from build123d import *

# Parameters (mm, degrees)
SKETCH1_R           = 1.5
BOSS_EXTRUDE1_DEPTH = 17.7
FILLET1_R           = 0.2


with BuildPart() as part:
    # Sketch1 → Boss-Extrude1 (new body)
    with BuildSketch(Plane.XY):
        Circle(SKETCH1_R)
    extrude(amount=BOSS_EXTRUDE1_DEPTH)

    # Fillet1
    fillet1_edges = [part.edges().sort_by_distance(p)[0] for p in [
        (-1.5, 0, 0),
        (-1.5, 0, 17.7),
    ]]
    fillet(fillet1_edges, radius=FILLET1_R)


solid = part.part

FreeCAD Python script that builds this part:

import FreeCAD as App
import Part
import Sketcher

V = App.Vector


def edges_at(feature, points):
    """Names of the edges that pass closest to the given points."""
    edges = feature.Shape.Edges
    near = lambda p: min(range(len(edges)), key=lambda i: edges[i].distToShape(Part.Vertex(*p))[0])
    return sorted({f"Edge{near(p) + 1}" for p in points})

doc = App.newDocument("Part")
body = doc.addObject("PartDesign::Body", "Body")

# Sketch on XY plane
sketch1 = body.newObject("Sketcher::SketchObject", "Sketch")
sketch1.AttachmentSupport = (doc.getObject("XY_Plane"), [""])
sketch1.MapMode = "FlatFace"
sketch1.addGeometry(Part.Circle(V(0, 0, 0), V(0, 0, 1), 1.5), False)
sketch1.addConstraint(Sketcher.Constraint("Coincident", 0, 3, -1, 1))
sketch1.addConstraint(Sketcher.Constraint("Diameter", 0, 3.0))
pad1 = body.newObject("PartDesign::Pad", "Pad")
pad1.Profile = sketch1
pad1.Length = 17.7
doc.recompute()

fillet = body.newObject("PartDesign::Fillet", "Fillet")
fillet.Base = (pad1, edges_at(pad1, [(-1.5, 0, 0), (-1.5, 0, 17.7)]))
fillet.Radius = 0.2

doc.recompute()
